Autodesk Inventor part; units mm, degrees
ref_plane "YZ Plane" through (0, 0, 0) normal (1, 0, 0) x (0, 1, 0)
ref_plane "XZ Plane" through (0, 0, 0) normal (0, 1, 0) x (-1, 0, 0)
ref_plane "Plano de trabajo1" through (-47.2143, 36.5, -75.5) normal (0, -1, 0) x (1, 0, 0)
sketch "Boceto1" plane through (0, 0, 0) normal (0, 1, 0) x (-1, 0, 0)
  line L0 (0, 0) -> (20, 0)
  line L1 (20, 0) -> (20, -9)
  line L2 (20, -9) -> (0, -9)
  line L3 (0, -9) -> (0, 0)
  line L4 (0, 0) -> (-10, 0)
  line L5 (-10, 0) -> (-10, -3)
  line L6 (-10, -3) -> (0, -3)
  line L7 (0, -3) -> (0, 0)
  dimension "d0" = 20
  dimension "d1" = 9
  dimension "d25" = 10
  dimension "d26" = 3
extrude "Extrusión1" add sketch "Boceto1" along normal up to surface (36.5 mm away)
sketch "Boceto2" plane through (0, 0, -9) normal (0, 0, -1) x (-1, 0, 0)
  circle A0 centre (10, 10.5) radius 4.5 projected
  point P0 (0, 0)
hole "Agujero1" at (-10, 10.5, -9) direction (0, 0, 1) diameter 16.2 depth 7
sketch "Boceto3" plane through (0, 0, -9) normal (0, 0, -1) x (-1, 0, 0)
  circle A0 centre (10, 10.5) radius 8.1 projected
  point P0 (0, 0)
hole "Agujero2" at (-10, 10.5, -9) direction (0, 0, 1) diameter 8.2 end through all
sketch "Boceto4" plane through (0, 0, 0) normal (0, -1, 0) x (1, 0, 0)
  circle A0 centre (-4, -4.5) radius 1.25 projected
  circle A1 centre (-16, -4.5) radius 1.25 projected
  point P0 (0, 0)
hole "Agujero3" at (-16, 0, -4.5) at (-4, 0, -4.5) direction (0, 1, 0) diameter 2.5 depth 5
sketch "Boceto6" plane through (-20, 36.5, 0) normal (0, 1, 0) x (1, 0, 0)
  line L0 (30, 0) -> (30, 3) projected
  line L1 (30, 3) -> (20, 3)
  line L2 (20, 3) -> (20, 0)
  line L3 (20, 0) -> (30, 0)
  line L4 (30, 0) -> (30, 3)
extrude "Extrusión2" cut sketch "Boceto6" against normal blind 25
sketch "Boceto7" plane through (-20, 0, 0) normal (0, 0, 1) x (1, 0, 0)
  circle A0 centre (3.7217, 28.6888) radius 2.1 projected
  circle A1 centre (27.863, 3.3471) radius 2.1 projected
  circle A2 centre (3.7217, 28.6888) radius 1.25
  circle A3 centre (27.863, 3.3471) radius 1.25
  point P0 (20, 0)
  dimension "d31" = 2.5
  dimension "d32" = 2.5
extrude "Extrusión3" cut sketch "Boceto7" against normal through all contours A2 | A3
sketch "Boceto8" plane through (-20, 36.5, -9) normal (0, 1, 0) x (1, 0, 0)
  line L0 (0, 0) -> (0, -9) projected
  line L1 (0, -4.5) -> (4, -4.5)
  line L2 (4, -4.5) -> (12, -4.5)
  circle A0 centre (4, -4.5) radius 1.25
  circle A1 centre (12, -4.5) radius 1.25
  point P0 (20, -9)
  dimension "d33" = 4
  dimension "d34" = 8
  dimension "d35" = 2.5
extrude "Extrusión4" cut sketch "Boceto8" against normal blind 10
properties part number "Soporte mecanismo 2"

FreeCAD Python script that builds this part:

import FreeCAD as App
import Part
import Sketcher
from FreeCAD import Vector
Q = App.Units.Quantity

doc = App.newDocument("Part")
body = doc.addObject("PartDesign::Body", "Body")

# Sketch on XZ plane
sketch1 = doc.addObject("Sketcher::SketchObject", "Sketch")
body.addObject(sketch1)
sketch1.AttachmentSupport = (doc.XZ_Plane, [""])
sketch1.MapMode = "FlatFace"
sketch1.addGeometry([
    Part.LineSegment(Vector(-20, 0, 0), Vector(10, 0, 0)),  # 0
    Part.LineSegment(Vector(10, 0, 0), Vector(10, -3, 0)),  # 1
    Part.LineSegment(Vector(10, -3, 0), Vector(0, -3, 0)),  # 2
    Part.LineSegment(Vector(0, -3, 0), Vector(0, -9, 0)),  # 3
    Part.LineSegment(Vector(0, -9, 0), Vector(-20, -9, 0)),  # 4
    Part.LineSegment(Vector(-20, -9, 0), Vector(-20, 0, 0)),  # 5
], False)
sketch1.addConstraint([
    Sketcher.Constraint("Coincident", 0, 2, 1, 1),
    Sketcher.Constraint("Coincident", 1, 2, 2, 1),
    Sketcher.Constraint("Coincident", 2, 2, 3, 1),
    Sketcher.Constraint("Coincident", 3, 2, 4, 1),
    Sketcher.Constraint("Coincident", 4, 2, 5, 1),
    Sketcher.Constraint("Coincident", 5, 2, 0, 1),
    Sketcher.Constraint("Horizontal", 0),
    Sketcher.Constraint("Vertical", 1),
    Sketcher.Constraint("Horizontal", 2),
    Sketcher.Constraint("Vertical", 3),
    Sketcher.Constraint("Horizontal", 4),
    Sketcher.Constraint("Vertical", 5),
    Sketcher.Constraint("PointOnObject", 0, 2, -1),
    Sketcher.Constraint("PointOnObject", 2, 2, -2),
    Sketcher.Constraint("DistanceX", 2, 2, 2, 1, Q("10 mm")),
    Sketcher.Constraint("DistanceX", 4, 2, 4, 1, Q("20 mm")),
    Sketcher.Constraint("DistanceY", 1, 2, 1, 1, Q("3 mm")),
    Sketcher.Constraint("DistanceY", 5, 1, 5, 2, Q("9 mm")),
])
pad1 = doc.addObject("PartDesign::Pad", "Pad")
body.addObject(pad1)
pad1.Profile = sketch1
pad1.Length = 36.5
pad1.Reversed = True

# Sketch on XY plane
sketch2 = doc.addObject("Sketcher::SketchObject", "Sketch001")
body.addObject(sketch2)
sketch2.AttachmentSupport = (doc.XY_Plane, [""])
sketch2.MapMode = "FlatFace"
sketch2.AttachmentOffset = App.Placement(Vector(0, 0, -9), App.Rotation())
sketch2.addGeometry(Part.Circle(Vector(-10, 10, 0), Vector(0, 0, 1), 8), False)
sketch2.addConstraint([
    Sketcher.Constraint("Diameter", 0, Q("16.2 mm")),
    Sketcher.Constraint("DistanceX", 0, 3, -1, 1, Q("10 mm")),
    Sketcher.Constraint("DistanceY", -1, 1, 0, 3, Q("10.5 mm")),
])
doc.recompute()
hole = doc.addObject("PartDesign::Hole", "Hole")
body.addObject(hole)
hole.Profile = sketch2
hole.ThreadType = "None"
hole.Diameter = 16.2
hole.DepthType = "Dimension"
hole.Depth = 7
hole.DrillPoint = "Flat"
hole.Reversed = True

# Sketch on XY plane
sketch3 = doc.addObject("Sketcher::SketchObject", "Sketch002")
body.addObject(sketch3)
sketch3.AttachmentSupport = (doc.XY_Plane, [""])
sketch3.MapMode = "FlatFace"
sketch3.AttachmentOffset = App.Placement(Vector(0, 0, -9), App.Rotation())
sketch3.addGeometry(Part.Circle(Vector(-10, 10.5, 0), Vector(0, 0, 1), 4.1), False)
sketch3.addConstraint([
    Sketcher.Constraint("Diameter", 0, Q("8.2 mm")),
    Sketcher.Constraint("DistanceX", 0, 3, -1, 1, Q("10 mm")),
    Sketcher.Constraint("DistanceY", -1, 1, 0, 3, Q("10.5 mm")),
])
doc.recompute()
hole2 = doc.addObject("PartDesign::Hole", "Hole001")
body.addObject(hole2)
hole2.Profile = sketch3
hole2.ThreadType = "None"
hole2.Diameter = 8.2
hole2.DepthType = "ThroughAll"
hole2.Reversed = True

# Sketch on XZ plane
sketch4 = doc.addObject("Sketcher::SketchObject", "Sketch003")
body.addObject(sketch4)
sketch4.AttachmentSupport = (doc.XZ_Plane, [""])
sketch4.MapMode = "FlatFace"
sketch4.addGeometry([
    Part.Circle(Vector(-16, -4.5, 0), Vector(0, 0, 1), 1.2),
    Part.Circle(Vector(-4, -4.5, 0), Vector(0, 0, 1), 1.2),
], False)
sketch4.addConstraint([
    Sketcher.Constraint("Equal", 0, 1),
    Sketcher.Constraint("Horizontal", 0, 3, 1, 3),
    Sketcher.Constraint("Diameter", 0, Q("2.5 mm")),
    Sketcher.Constraint("DistanceX", 0, 3, -1, 1, Q("16 mm")),
    Sketcher.Constraint("DistanceX", 1, 3, -1, 1, Q("4 mm")),
    Sketcher.Constraint("DistanceY", 0, 3, -1, 1, Q("4.5 mm")),
])
doc.recompute()
hole3 = doc.addObject("PartDesign::Hole", "Hole002")
body.addObject(hole3)
hole3.Profile = sketch4
hole3.ThreadType = "None"
hole3.Diameter = 2.5
hole3.DepthType = "Dimension"
hole3.Depth = 5
hole3.DrillPoint = "Flat"

# Sketch on XZ plane
sketch5 = doc.addObject("Sketcher::SketchObject", "Sketch004")
body.addObject(sketch5)
sketch5.AttachmentSupport = (doc.XZ_Plane, [""])
sketch5.MapMode = "FlatFace"
sketch5.AttachmentOffset = App.Placement(Vector(0, 0, -36.5), App.Rotation())
sketch5.addGeometry([
    Part.LineSegment(Vector(0, 0, 0), Vector(10, 0, 0)),
    Part.LineSegment(Vector(10, 0, 0), Vector(10, -3, 0)),
    Part.LineSegment(Vector(10, -3, 0), Vector(0, -3, 0)),
    Part.LineSegment(Vector(0, -3, 0), Vector(0, 0, 0)),
], False)
sketch5.addConstraint([
    Sketcher.Constraint("Coincident", 0, 2, 1, 1),
    Sketcher.Constraint("Coincident", 1, 2, 2, 1),
    Sketcher.Constraint("Coincident", 2, 2, 3, 1),
    Sketcher.Constraint("Coincident", 3, 2, 0, 1),
    Sketcher.Constraint("Horizontal", 0),
    Sketcher.Constraint("Vertical", 1),
    Sketcher.Constraint("Horizontal", 2),
    Sketcher.Constraint("Vertical", 3),
    Sketcher.Constraint("Coincident", 3, 2, -1, 1),
    Sketcher.Constraint("DistanceX", 0, 1, 0, 2, Q("10 mm")),
    Sketcher.Constraint("DistanceY", 1, 2, 1, 1, Q("3 mm")),
])
pocket1 = doc.addObject("PartDesign::Pocket", "Pocket")
body.addObject(pocket1)
pocket1.Profile = sketch5
pocket1.Length = 25
pocket1.Reversed = True

# Sketch on XY plane
sketch6 = doc.addObject("Sketcher::SketchObject", "Sketch005")
body.addObject(sketch6)
sketch6.AttachmentSupport = (doc.XY_Plane, [""])
sketch6.MapMode = "FlatFace"
sketch6.addGeometry([
    Part.Circle(Vector(-16.3, 28.7, 0), Vector(0, 0, 1), 1.2),
    Part.Circle(Vector(7.9, 3.3, 0), Vector(0, 0, 1), 1.2),
], False)
sketch6.addConstraint([
    Sketcher.Constraint("Equal", 0, 1),
    Sketcher.Constraint("Diameter", 0, Q("2.5 mm")),
    Sketcher.Constraint("DistanceX", -1, 1, 1, 3, Q("7.863 mm")),
    Sketcher.Constraint("DistanceY", -1, 1, 1, 3, Q("3.347 mm")),
    Sketcher.Constraint("DistanceX", 0, 3, -1, 1, Q("16.2783 mm")),
    Sketcher.Constraint("DistanceY", -1, 1, 0, 3, Q("28.6888 mm")),
])
pocket2 = doc.addObject("PartDesign::Pocket", "Pocket001")
body.addObject(pocket2)
pocket2.Profile = sketch6
pocket2.Type = "ThroughAll"

# Sketch on XZ plane
sketch7 = doc.addObject("Sketcher::SketchObject", "Sketch006")
body.addObject(sketch7)
sketch7.AttachmentSupport = (doc.XZ_Plane, [""])
sketch7.MapMode = "FlatFace"
sketch7.AttachmentOffset = App.Placement(Vector(0, 0, -36.5), App.Rotation())
sketch7.addGeometry([
    Part.Circle(Vector(-16, -4.5, 0), Vector(0, 0, 1), 1.2),
    Part.Circle(Vector(-8, -4.5, 0), Vector(0, 0, 1), 1.2),
], False)
sketch7.addConstraint([
    Sketcher.Constraint("Equal", 0, 1),
    Sketcher.Constraint("Horizontal", 0, 3, 1, 3),
    Sketcher.Constraint("Diameter", 0, Q("2.5 mm")),
    Sketcher.Constraint("DistanceX", 1, 3, -1, 1, Q("8 mm")),
    Sketcher.Constraint("DistanceX", 0, 3, 1, 3, Q("8 mm")),
    Sketcher.Constraint("DistanceY", 0, 3, -1, 1, Q("4.5 mm")),
])
pocket3 = doc.addObject("PartDesign::Pocket", "Pocket002")
body.addObject(pocket3)
pocket3.Profile = sketch7
pocket3.Length = 10
pocket3.Reversed = True

doc.recompute()
